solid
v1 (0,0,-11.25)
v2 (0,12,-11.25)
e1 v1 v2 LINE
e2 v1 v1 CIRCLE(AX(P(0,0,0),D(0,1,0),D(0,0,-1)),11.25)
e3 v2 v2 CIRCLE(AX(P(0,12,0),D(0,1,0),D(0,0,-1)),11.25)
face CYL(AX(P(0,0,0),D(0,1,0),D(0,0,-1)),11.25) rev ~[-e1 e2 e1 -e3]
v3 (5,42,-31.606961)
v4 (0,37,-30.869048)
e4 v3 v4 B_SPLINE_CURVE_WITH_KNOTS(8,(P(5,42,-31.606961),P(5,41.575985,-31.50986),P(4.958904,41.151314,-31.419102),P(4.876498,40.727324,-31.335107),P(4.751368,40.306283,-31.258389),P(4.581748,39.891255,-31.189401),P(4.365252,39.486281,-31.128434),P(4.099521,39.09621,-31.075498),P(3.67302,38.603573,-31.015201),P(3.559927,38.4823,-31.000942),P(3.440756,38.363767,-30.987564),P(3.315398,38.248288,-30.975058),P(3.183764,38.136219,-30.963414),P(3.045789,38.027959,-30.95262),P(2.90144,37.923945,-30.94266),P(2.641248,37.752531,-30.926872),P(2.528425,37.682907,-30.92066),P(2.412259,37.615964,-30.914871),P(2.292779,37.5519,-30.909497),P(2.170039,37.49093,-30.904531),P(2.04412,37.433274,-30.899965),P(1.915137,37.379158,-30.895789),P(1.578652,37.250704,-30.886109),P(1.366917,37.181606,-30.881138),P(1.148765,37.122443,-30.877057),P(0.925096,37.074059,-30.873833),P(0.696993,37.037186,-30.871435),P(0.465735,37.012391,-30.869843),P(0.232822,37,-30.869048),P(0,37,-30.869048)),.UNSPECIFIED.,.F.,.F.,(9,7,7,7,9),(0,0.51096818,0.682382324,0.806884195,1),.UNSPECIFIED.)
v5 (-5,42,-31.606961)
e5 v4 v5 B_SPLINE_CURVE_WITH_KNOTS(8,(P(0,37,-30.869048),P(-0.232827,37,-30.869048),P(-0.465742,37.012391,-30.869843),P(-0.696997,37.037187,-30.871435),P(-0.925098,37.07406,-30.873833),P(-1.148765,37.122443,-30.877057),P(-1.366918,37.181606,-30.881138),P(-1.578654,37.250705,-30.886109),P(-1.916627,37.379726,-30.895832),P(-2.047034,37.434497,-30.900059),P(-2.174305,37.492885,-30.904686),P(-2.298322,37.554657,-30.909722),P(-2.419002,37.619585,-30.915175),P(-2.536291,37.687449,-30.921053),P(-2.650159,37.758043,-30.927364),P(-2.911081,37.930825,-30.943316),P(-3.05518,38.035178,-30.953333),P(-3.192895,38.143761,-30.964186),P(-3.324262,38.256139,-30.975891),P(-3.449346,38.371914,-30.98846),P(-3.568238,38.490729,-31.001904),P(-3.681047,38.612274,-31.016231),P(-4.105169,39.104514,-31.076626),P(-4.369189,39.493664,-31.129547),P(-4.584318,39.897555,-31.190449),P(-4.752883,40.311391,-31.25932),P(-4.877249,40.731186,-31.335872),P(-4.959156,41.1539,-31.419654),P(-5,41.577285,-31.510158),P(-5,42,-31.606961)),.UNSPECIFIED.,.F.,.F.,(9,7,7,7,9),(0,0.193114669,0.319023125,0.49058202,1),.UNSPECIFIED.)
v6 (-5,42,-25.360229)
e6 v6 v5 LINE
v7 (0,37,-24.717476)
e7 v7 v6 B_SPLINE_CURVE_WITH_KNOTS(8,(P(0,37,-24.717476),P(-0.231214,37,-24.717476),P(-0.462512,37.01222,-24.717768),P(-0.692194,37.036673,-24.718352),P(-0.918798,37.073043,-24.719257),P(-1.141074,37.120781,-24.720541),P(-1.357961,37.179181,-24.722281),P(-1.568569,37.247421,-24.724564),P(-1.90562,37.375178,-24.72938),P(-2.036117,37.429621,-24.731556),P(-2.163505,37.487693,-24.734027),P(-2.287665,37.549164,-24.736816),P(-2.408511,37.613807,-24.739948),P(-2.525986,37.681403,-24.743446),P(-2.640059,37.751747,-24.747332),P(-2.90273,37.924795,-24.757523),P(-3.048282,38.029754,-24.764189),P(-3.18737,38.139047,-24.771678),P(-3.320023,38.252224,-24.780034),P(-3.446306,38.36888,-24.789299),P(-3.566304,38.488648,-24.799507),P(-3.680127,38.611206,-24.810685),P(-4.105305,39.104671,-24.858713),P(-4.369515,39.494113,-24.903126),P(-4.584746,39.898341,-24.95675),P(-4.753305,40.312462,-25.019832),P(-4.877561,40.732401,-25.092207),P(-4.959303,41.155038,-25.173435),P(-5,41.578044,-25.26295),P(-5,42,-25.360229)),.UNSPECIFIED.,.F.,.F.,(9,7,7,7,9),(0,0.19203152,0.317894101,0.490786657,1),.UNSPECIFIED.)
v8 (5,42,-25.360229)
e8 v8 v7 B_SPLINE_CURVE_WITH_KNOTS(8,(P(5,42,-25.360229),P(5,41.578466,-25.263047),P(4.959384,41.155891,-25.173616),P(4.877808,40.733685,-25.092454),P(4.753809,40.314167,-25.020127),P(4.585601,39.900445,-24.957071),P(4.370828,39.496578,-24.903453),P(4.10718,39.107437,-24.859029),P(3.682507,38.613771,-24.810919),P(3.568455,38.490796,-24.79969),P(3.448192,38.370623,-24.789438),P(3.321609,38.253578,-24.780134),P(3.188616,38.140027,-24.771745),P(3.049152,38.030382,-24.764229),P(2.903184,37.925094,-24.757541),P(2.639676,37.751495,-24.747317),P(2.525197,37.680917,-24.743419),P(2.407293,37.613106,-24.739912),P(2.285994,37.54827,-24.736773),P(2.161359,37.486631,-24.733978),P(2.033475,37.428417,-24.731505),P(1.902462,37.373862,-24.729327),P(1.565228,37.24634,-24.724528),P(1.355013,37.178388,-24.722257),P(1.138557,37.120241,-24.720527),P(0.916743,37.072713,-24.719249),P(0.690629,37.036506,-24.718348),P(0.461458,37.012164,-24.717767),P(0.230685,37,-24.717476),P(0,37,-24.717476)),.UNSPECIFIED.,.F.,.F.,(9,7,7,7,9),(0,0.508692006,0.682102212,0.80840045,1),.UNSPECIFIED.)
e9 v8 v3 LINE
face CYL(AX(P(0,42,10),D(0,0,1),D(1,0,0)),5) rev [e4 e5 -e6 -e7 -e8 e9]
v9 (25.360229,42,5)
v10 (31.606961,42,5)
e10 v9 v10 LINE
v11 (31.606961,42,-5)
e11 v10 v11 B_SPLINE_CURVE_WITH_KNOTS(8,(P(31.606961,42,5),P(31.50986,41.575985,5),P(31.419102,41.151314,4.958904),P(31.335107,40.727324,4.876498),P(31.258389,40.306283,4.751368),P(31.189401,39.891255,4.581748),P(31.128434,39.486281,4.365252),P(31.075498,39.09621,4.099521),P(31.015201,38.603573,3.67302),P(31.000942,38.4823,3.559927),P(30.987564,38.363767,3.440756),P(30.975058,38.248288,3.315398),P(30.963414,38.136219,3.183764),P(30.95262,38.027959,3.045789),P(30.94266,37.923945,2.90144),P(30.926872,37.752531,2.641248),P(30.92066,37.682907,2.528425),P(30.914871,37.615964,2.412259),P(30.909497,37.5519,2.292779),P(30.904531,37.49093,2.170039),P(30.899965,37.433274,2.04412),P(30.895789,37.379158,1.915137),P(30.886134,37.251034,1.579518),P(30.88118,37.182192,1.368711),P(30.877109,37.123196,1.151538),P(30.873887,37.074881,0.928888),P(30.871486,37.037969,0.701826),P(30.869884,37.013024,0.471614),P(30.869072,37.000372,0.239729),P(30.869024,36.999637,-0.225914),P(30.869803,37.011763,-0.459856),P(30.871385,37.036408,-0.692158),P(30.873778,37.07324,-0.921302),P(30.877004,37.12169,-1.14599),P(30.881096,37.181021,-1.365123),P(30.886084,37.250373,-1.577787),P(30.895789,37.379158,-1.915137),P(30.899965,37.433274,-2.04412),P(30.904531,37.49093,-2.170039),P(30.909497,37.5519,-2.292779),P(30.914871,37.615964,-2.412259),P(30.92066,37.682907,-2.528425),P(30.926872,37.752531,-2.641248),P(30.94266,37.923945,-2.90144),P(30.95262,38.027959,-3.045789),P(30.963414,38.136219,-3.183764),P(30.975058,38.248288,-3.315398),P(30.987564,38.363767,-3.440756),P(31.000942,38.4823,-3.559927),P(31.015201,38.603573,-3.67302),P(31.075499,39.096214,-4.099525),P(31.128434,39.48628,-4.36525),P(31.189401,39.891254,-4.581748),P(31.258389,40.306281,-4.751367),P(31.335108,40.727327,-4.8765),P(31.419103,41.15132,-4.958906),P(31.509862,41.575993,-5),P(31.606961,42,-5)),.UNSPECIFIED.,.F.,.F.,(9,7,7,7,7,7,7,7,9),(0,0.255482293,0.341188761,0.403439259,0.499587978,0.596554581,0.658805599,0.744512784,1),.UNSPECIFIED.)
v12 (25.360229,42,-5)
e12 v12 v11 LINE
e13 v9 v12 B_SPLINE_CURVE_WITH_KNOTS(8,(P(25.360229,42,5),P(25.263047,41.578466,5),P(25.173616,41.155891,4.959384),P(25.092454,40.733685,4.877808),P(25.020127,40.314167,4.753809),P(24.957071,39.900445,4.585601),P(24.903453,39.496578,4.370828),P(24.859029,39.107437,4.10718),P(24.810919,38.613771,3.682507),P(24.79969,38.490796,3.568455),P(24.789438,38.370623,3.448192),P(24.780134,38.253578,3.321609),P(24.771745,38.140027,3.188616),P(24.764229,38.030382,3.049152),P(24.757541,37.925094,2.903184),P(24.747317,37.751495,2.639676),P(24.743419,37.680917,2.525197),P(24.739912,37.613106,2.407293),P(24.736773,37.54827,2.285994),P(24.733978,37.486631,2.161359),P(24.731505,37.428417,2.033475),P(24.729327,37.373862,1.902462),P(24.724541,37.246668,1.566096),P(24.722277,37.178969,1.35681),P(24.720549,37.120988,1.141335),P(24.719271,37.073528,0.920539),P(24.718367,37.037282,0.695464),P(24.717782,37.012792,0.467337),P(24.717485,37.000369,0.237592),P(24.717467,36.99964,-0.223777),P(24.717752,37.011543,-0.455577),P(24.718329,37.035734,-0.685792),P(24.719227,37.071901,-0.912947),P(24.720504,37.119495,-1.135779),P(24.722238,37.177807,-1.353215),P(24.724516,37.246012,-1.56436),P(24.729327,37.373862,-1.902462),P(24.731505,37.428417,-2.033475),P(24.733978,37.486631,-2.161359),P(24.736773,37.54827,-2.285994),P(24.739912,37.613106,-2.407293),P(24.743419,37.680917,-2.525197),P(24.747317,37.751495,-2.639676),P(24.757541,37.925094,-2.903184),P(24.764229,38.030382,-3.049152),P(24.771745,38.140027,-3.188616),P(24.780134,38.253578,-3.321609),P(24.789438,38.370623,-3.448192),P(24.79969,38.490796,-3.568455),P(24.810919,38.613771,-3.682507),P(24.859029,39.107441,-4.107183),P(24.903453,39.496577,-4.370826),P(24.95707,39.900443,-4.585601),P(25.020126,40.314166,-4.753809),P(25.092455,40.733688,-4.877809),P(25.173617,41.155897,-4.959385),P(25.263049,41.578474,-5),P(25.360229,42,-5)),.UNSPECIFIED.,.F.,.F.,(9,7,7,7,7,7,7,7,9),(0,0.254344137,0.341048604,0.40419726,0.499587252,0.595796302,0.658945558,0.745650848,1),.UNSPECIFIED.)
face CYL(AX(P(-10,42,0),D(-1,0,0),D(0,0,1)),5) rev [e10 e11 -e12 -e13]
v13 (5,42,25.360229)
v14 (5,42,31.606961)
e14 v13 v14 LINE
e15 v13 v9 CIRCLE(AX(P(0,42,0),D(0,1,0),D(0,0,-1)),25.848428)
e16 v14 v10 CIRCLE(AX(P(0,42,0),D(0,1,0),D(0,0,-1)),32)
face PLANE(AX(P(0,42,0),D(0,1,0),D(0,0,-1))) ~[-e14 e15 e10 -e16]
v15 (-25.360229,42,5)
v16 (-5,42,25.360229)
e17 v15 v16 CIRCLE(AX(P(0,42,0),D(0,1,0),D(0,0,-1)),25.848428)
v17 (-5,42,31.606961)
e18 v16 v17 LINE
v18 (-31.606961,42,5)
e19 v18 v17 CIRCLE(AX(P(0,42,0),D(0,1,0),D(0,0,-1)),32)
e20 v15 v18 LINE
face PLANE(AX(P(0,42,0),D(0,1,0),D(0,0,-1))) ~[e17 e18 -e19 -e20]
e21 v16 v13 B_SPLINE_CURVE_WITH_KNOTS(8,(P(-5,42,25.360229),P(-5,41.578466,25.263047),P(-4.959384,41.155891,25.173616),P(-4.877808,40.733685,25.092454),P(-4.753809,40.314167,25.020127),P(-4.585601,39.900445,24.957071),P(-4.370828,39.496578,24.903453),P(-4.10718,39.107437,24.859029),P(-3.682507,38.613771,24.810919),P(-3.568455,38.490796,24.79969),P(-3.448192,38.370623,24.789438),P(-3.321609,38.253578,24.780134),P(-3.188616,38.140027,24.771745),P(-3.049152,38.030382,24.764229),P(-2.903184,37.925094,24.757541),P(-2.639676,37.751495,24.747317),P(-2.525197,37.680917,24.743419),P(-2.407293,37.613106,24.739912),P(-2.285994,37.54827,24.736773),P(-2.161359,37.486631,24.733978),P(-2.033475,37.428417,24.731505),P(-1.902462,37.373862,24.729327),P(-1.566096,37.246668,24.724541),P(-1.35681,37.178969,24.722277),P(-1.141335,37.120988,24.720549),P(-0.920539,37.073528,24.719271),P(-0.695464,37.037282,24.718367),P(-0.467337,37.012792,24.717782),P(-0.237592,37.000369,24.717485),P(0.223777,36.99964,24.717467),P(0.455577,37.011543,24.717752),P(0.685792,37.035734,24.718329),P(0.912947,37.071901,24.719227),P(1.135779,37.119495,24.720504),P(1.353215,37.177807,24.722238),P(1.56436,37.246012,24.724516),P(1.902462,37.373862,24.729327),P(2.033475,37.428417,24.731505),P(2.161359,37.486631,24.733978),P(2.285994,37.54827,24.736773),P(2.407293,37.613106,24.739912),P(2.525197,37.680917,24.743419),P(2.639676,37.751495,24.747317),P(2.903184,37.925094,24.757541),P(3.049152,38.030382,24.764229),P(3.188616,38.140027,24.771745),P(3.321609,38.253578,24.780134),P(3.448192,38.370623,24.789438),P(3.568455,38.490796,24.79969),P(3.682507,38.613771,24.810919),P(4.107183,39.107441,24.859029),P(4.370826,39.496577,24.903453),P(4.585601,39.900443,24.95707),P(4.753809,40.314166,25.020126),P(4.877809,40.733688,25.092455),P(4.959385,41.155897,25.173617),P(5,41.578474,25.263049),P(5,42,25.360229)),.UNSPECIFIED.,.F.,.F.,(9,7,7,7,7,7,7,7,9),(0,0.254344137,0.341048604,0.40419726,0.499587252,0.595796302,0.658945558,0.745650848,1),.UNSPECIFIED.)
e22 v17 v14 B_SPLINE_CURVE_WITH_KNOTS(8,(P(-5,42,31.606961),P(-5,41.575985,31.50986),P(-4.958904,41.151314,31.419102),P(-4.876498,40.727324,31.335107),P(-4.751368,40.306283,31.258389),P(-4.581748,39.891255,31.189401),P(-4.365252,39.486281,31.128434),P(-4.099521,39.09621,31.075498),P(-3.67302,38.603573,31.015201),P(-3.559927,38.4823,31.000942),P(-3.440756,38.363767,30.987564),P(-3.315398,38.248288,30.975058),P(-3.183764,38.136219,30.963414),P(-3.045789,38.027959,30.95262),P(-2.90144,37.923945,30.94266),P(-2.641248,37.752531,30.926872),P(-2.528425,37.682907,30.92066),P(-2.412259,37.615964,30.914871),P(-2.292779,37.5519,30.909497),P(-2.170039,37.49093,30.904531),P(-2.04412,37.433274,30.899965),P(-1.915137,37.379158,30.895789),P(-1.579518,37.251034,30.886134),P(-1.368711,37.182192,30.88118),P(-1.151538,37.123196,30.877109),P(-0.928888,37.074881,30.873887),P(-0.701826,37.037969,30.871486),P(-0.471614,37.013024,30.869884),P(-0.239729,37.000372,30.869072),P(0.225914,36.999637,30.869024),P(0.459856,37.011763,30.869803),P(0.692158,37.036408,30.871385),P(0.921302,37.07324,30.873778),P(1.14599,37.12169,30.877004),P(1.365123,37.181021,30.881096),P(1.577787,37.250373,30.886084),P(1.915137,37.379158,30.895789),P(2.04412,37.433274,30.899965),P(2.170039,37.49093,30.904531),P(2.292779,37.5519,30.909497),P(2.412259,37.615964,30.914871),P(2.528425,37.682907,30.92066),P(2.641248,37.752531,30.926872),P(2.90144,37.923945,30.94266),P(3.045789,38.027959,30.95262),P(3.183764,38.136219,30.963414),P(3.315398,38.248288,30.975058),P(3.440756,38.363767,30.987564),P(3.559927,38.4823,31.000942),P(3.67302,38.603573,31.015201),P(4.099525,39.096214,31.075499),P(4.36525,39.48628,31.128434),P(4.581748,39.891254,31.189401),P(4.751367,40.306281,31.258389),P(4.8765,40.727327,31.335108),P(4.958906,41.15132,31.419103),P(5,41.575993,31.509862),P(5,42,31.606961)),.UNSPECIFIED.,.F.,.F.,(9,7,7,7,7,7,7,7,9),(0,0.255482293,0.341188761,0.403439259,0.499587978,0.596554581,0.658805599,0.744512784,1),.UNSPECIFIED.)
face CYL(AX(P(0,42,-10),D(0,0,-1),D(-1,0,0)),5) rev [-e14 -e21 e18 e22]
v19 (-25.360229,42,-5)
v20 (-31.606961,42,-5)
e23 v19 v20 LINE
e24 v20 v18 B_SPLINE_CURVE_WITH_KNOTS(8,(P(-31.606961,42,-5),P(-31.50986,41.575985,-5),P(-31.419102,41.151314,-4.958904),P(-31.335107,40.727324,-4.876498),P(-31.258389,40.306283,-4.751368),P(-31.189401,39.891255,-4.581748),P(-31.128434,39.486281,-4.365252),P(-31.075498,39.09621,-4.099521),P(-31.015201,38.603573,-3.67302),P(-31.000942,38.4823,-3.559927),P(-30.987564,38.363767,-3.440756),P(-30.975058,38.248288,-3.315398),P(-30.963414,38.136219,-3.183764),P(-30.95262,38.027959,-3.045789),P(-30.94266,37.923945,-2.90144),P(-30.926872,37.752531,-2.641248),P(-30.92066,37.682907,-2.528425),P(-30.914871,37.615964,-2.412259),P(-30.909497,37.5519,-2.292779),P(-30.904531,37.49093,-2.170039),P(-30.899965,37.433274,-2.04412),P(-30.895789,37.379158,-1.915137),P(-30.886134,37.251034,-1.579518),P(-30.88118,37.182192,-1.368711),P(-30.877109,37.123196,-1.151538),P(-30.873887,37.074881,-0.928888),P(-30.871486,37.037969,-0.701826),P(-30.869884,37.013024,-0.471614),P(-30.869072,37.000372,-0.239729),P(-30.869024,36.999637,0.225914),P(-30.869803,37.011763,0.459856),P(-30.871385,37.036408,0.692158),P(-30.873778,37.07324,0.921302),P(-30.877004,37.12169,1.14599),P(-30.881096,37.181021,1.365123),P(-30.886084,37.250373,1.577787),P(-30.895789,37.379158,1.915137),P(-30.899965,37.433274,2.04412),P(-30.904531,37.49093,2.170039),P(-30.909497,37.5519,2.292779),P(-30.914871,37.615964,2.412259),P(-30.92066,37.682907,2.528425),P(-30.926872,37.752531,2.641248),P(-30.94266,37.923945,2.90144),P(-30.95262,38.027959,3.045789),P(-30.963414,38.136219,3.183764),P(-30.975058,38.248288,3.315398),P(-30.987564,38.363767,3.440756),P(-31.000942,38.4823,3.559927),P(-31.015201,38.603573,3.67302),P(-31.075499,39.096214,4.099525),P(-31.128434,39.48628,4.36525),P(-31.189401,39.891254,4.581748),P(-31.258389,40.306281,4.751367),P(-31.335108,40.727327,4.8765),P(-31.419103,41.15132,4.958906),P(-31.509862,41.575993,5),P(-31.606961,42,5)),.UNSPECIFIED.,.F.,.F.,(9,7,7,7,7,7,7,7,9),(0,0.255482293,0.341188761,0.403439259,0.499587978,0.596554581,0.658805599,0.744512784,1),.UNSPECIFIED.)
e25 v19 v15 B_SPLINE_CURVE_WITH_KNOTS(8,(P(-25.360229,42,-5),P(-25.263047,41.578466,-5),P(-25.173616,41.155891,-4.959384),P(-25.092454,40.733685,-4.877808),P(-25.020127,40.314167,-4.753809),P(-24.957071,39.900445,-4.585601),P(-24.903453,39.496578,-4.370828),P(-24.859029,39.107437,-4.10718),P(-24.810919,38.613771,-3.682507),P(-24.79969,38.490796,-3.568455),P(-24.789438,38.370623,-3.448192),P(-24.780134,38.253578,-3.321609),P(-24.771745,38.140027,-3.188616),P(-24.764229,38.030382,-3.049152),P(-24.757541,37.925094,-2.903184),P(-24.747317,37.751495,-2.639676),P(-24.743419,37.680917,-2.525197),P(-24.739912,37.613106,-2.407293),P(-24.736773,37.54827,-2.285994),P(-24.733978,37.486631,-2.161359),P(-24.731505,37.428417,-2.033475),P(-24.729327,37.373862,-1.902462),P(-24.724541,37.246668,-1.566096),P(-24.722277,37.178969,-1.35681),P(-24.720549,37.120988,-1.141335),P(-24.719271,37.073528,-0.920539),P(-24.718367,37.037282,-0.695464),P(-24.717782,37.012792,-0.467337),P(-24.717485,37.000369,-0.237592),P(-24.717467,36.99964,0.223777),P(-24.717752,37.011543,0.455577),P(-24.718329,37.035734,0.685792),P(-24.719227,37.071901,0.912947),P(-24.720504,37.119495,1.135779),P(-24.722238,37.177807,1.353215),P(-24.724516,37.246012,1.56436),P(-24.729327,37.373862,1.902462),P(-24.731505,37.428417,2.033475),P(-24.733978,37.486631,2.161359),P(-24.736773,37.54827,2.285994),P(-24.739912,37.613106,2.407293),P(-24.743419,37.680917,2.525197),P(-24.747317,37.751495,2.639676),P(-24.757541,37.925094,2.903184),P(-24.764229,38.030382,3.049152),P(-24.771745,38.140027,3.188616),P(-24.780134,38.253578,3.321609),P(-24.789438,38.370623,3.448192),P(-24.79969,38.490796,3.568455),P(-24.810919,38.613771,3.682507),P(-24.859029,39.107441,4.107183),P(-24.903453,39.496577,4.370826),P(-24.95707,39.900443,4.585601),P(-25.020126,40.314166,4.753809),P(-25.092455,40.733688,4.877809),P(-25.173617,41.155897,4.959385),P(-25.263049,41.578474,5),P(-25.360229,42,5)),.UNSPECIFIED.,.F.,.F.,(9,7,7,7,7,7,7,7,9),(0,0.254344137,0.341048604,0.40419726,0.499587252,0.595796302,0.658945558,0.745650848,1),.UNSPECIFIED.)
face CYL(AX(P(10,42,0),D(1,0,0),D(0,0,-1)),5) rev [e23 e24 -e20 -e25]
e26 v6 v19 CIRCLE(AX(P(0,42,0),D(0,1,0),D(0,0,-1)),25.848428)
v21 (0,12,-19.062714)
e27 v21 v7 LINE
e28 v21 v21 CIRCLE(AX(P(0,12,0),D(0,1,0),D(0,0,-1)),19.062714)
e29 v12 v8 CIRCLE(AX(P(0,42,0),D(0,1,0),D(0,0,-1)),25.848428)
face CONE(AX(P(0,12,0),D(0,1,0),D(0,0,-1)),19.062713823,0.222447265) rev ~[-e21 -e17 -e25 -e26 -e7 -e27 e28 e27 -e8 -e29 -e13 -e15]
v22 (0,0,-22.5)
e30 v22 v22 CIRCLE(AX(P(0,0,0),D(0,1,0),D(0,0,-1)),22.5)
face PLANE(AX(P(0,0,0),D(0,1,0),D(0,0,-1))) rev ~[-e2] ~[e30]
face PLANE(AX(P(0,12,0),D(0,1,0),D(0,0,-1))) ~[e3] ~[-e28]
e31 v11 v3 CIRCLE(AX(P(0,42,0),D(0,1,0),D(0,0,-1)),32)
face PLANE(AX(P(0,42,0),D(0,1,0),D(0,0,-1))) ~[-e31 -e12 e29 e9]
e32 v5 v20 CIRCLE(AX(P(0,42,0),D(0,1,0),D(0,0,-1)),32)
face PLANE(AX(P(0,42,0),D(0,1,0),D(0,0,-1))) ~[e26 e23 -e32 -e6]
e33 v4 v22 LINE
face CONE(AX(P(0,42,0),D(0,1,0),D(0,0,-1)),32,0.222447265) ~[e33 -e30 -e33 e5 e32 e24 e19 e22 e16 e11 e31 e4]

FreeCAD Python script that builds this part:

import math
import FreeCAD as App
import Part
import Sketcher

doc = App.newDocument("Part")
body = doc.addObject("PartDesign::Body", "Body")

# Sketch on XY plane
sketch1 = body.newObject("Sketcher::SketchObject", "Sketch")
sketch1.AttachmentSupport = (doc.getObject("XY_Plane"), [""])
sketch1.MapMode = "FlatFace"
sketch1.addGeometry([
    Part.LineSegment(App.Vector(11, 12, 0), App.Vector(11, 0, 0)),  # 0
    Part.LineSegment(App.Vector(11, 0, 0), App.Vector(22, 0, 0)),  # 1
    Part.LineSegment(App.Vector(22, 0, 0), App.Vector(32, 42, 0)),  # 2
    Part.LineSegment(App.Vector(32, 42, 0), App.Vector(26, 42, 0)),  # 3
    Part.LineSegment(App.Vector(26, 42, 0), App.Vector(19, 12, 0)),  # 4
    Part.LineSegment(App.Vector(19, 12, 0), App.Vector(11, 12, 0)),  # 5
], False)
sketch1.addConstraint([
    Sketcher.Constraint("Coincident", 0, 2, 1, 1),
    Sketcher.Constraint("Coincident", 1, 2, 2, 1),
    Sketcher.Constraint("Coincident", 2, 2, 3, 1),
    Sketcher.Constraint("Coincident", 3, 2, 4, 1),
    Sketcher.Constraint("Coincident", 4, 2, 5, 1),
    Sketcher.Constraint("Coincident", 5, 2, 0, 1),
    Sketcher.Constraint("Vertical", 0),
    Sketcher.Constraint("Horizontal", 1),
    Sketcher.Constraint("Horizontal", 3),
    Sketcher.Constraint("Horizontal", 5),
    Sketcher.Constraint("PointOnObject", 0, 2, -1),
    Sketcher.Constraint("Parallel", 2, 4),
    Sketcher.Constraint("DistanceY", 0, 2, 0, 1, 12.0),
    Sketcher.Constraint("DistanceX", -1, 1, 2, 2, 32.0),
    Sketcher.Constraint("DistanceY", -1, 1, 2, 2, 42.0),
    Sketcher.Constraint("DistanceX", 1, 1, 1, 2, 11.25),
    Sketcher.Constraint("DistanceX", -1, 1, 1, 2, 22.5),
    Sketcher.Constraint("DistanceX", 3, 2, 3, 1, 6.151572),
])
revolution = body.newObject("PartDesign::Revolution", "Revolution")
revolution.Profile = sketch1
revolution.ReferenceAxis = (sketch1, ["V_Axis"])
revolution.Angle = 360

# Sketch on XY plane
sketch2 = body.newObject("Sketcher::SketchObject", "Sketch001")
sketch2.AttachmentSupport = (doc.getObject("XY_Plane"), [""])
sketch2.MapMode = "FlatFace"
sketch2.AttachmentOffset = App.Placement(App.Vector(0, 0, -10), App.Rotation())
sketch2.addGeometry([
    Part.LineSegment(App.Vector(5, 42, 0), App.Vector(-5, 42, 0)),
    Part.ArcOfCircle(Part.Circle(App.Vector(0, 42, 0), App.Vector(0, 0, 1), 5), math.radians(180), math.radians(360)),
], False)
sketch2.addConstraint([
    Sketcher.Constraint("Coincident", 0, 1, 1, 2),
    Sketcher.Constraint("Coincident", 1, 1, 0, 2),
    Sketcher.Constraint("Horizontal", 0),
    Sketcher.Constraint("PointOnObject", 1, 3, -2),
    Sketcher.Constraint("Horizontal", 1, 3, 0, 1),
    Sketcher.Constraint("Radius", 1, 5.0),
    Sketcher.Constraint("DistanceY", -1, 1, 1, 3, 42.0),
])
pocket1 = body.newObject("PartDesign::Pocket", "Pocket")
pocket1.Profile = sketch2
pocket1.Length = 72.741396
pocket1.Reversed = True
doc.recompute()

polarpattern = body.newObject("PartDesign::PolarPattern", "PolarPattern")
polarpattern.Originals = [pocket1]
polarpattern.Axis = (doc.getObject("Y_Axis"), [""])
polarpattern.Angle = 360
polarpattern.Occurrences = 4
body.Tip = polarpattern

doc.recompute()
